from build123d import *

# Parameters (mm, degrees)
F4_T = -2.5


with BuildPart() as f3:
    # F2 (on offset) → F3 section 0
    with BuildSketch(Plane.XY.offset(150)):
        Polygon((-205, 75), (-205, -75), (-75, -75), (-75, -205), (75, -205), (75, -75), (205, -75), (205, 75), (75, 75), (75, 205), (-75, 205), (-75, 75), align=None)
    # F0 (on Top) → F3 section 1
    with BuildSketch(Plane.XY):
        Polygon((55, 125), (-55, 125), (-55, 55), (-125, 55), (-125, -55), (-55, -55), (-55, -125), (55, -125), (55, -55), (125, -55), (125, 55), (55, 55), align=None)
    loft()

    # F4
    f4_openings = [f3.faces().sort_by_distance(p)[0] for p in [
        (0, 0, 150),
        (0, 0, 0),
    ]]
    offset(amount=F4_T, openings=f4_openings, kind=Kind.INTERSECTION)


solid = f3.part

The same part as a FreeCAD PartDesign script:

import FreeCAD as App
import Part
import Sketcher

V = App.Vector
Q = App.Units.Quantity


def faces_at(feature, points):
    """Names of the faces that lie closest to the given points."""
    faces = feature.Shape.Faces
    near = lambda p: min(range(len(faces)), key=lambda i: faces[i].distToShape(Part.Vertex(*p))[0])
    return sorted({f"Face{near(p) + 1}" for p in points})

doc = App.newDocument("Part")
body = doc.addObject("PartDesign::Body", "Body")

sketch1 = body.newObject("Sketcher::SketchObject", "Sketch")
sketch1.AttachmentSupport = (doc.getObject("XY_Plane"), [""])
sketch1.MapMode = "FlatFace"
sketch1.AttachmentOffset = App.Placement(V(0, 0, 150), App.Rotation())
sketch1.addGeometry(Part.LineSegment(V(-205, 75, 0), V(-205, -75, 0)), False)
sketch1.addGeometry(Part.LineSegment(V(-205, -75, 0), V(-75, -75, 0)), False)
sketch1.addGeometry(Part.LineSegment(V(-75, -75, 0), V(-75, -205, 0)), False)
sketch1.addGeometry(Part.LineSegment(V(-75, -205, 0), V(75, -205, 0)), False)
sketch1.addGeometry(Part.LineSegment(V(75, -205, 0), V(75, -75, 0)), False)
sketch1.addGeometry(Part.LineSegment(V(75, -75, 0), V(205, -75, 0)), False)
sketch1.addGeometry(Part.LineSegment(V(205, -75, 0), V(205, 75, 0)), False)
sketch1.addGeometry(Part.LineSegment(V(205, 75, 0), V(75, 75, 0)), False)
sketch1.addGeometry(Part.LineSegment(V(75, 75, 0), V(75, 205, 0)), False)
sketch1.addGeometry(Part.LineSegment(V(75, 205, 0), V(-75, 205, 0)), False)
sketch1.addGeometry(Part.LineSegment(V(-75, 205, 0), V(-75, 75, 0)), False)
sketch1.addGeometry(Part.LineSegment(V(-75, 75, 0), V(-205, 75, 0)), False)
sketch1.addConstraint(Sketcher.Constraint("Coincident", 0, 2, 1, 1))
sketch1.addConstraint(Sketcher.Constraint("Coincident", 1, 2, 2, 1))
sketch1.addConstraint(Sketcher.Constraint("Coincident", 2, 2, 3, 1))
sketch1.addConstraint(Sketcher.Constraint("Coincident", 3, 2, 4, 1))
sketch1.addConstraint(Sketcher.Constraint("Coincident", 4, 2, 5, 1))
sketch1.addConstraint(Sketcher.Constraint("Coincident", 5, 2, 6, 1))
sketch1.addConstraint(Sketcher.Constraint("Coincident", 6, 2, 7, 1))
sketch1.addConstraint(Sketcher.Constraint("Coincident", 7, 2, 8, 1))
sketch1.addConstraint(Sketcher.Constraint("Coincident", 8, 2, 9, 1))
sketch1.addConstraint(Sketcher.Constraint("Coincident", 9, 2, 10, 1))
sketch1.addConstraint(Sketcher.Constraint("Coincident", 10, 2, 11, 1))
sketch1.addConstraint(Sketcher.Constraint("Coincident", 11, 2, 0, 1))
sketch1.addConstraint(Sketcher.Constraint("Vertical", 0))
sketch1.addConstraint(Sketcher.Constraint("Horizontal", 1))
sketch1.addConstraint(Sketcher.Constraint("Vertical", 2))
sketch1.addConstraint(Sketcher.Constraint("Horizontal", 3))
sketch1.addConstraint(Sketcher.Constraint("Vertical", 4))
sketch1.addConstraint(Sketcher.Constraint("Horizontal", 5))
sketch1.addConstraint(Sketcher.Constraint("Vertical", 6))
sketch1.addConstraint(Sketcher.Constraint("Horizontal", 7))
sketch1.addConstraint(Sketcher.Constraint("Vertical", 8))
sketch1.addConstraint(Sketcher.Constraint("Horizontal", 9))
sketch1.addConstraint(Sketcher.Constraint("Vertical", 10))
sketch1.addConstraint(Sketcher.Constraint("Horizontal", 11))
sketch1.addConstraint(Sketcher.Constraint("Symmetric", 0, 2, 6, 2, -1, 1))
sketch1.addConstraint(Sketcher.Constraint("Symmetric", 2, 2, 8, 2, -1, 1))
sketch1.addConstraint(Sketcher.Constraint("Symmetric", 4, 2, 10, 2, -1, 1))
sketch1.addConstraint(Sketcher.Constraint("Symmetric", 1, 2, 4, 2, -2))
sketch1.addConstraint(Sketcher.Constraint("Equal", 9, 0))
sketch1.addConstraint(Sketcher.Constraint("Equal", 11, 2))
sketch1.addConstraint(Sketcher.Constraint("DistanceX", 1, 1, 1, 2, Q("130 mm")))
sketch1.addConstraint(Sketcher.Constraint("DistanceX", 3, 1, 3, 2, Q("150 mm")))

sketch2 = body.newObject("Sketcher::SketchObject", "Sketch001")
sketch2.AttachmentSupport = (doc.getObject("XY_Plane"), [""])
sketch2.MapMode = "FlatFace"
sketch2.addGeometry(Part.LineSegment(V(55, 125, 0), V(-55, 125, 0)), False)
sketch2.addGeometry(Part.LineSegment(V(-55, 125, 0), V(-55, 55, 0)), False)
sketch2.addGeometry(Part.LineSegment(V(-55, 55, 0), V(-125, 55, 0)), False)
sketch2.addGeometry(Part.LineSegment(V(-125, 55, 0), V(-125, -55, 0)), False)
sketch2.addGeometry(Part.LineSegment(V(-125, -55, 0), V(-55, -55, 0)), False)
sketch2.addGeometry(Part.LineSegment(V(-55, -55, 0), V(-55, -125, 0)), False)
sketch2.addGeometry(Part.LineSegment(V(-55, -125, 0), V(55, -125, 0)), False)
sketch2.addGeometry(Part.LineSegment(V(55, -125, 0), V(55, -55, 0)), False)
sketch2.addGeometry(Part.LineSegment(V(55, -55, 0), V(125, -55, 0)), False)
sketch2.addGeometry(Part.LineSegment(V(125, -55, 0), V(125, 55, 0)), False)
sketch2.addGeometry(Part.LineSegment(V(125, 55, 0), V(55, 55, 0)), False)
sketch2.addGeometry(Part.LineSegment(V(55, 55, 0), V(55, 125, 0)), False)
sketch2.addConstraint(Sketcher.Constraint("Coincident", 0, 2, 1, 1))
sketch2.addConstraint(Sketcher.Constraint("Coincident", 1, 2, 2, 1))
sketch2.addConstraint(Sketcher.Constraint("Coincident", 2, 2, 3, 1))
sketch2.addConstraint(Sketcher.Constraint("Coincident", 3, 2, 4, 1))
sketch2.addConstraint(Sketcher.Constraint("Coincident", 4, 2, 5, 1))
sketch2.addConstraint(Sketcher.Constraint("Coincident", 5, 2, 6, 1))
sketch2.addConstraint(Sketcher.Constraint("Coincident", 6, 2, 7, 1))
sketch2.addConstraint(Sketcher.Constraint("Coincident", 7, 2, 8, 1))
sketch2.addConstraint(Sketcher.Constraint("Coincident", 8, 2, 9, 1))
sketch2.addConstraint(Sketcher.Constraint("Coincident", 9, 2, 10, 1))
sketch2.addConstraint(Sketcher.Constraint("Coincident", 10, 2, 11, 1))
sketch2.addConstraint(Sketcher.Constraint("Coincident", 11, 2, 0, 1))
sketch2.addConstraint(Sketcher.Constraint("Horizontal", 0))
sketch2.addConstraint(Sketcher.Constraint("Vertical", 1))
sketch2.addConstraint(Sketcher.Constraint("Horizontal", 2))
sketch2.addConstraint(Sketcher.Constraint("Vertical", 3))
sketch2.addConstraint(Sketcher.Constraint("Horizontal", 4))
sketch2.addConstraint(Sketcher.Constraint("Vertical", 5))
sketch2.addConstraint(Sketcher.Constraint("Horizontal", 6))
sketch2.addConstraint(Sketcher.Constraint("Vertical", 7))
sketch2.addConstraint(Sketcher.Constraint("Horizontal", 8))
sketch2.addConstraint(Sketcher.Constraint("Vertical", 9))
sketch2.addConstraint(Sketcher.Constraint("Horizontal", 10))
sketch2.addConstraint(Sketcher.Constraint("Vertical", 11))
sketch2.addConstraint(Sketcher.Constraint("Symmetric", 0, 2, 6, 2, -1, 1))
sketch2.addConstraint(Sketcher.Constraint("Symmetric", 2, 2, 8, 2, -1, 1))
sketch2.addConstraint(Sketcher.Constraint("Symmetric", 4, 2, 10, 2, -1, 1))
sketch2.addConstraint(Sketcher.Constraint("Symmetric", 4, 2, 7, 2, -2))
sketch2.addConstraint(Sketcher.Constraint("Equal", 10, 1))
sketch2.addConstraint(Sketcher.Constraint("Equal", 6, 3))
sketch2.addConstraint(Sketcher.Constraint("DistanceX", 0, 2, 0, 1, Q("110 mm")))
sketch2.addConstraint(Sketcher.Constraint("DistanceX", 2, 2, 2, 1, Q("70 mm")))

additiveloft = body.newObject("PartDesign::AdditiveLoft", "AdditiveLoft")
additiveloft.Profile = sketch1
additiveloft.Sections = [sketch2]
doc.recompute()

thickness = body.newObject("PartDesign::Thickness", "Thickness")
thickness.Base = (additiveloft, faces_at(additiveloft, [(0, 0, 150), (0, 0, 0)]))
thickness.Value = 2.5
thickness.Reversed = True
thickness.Join = "Intersection"

doc.recompute()
